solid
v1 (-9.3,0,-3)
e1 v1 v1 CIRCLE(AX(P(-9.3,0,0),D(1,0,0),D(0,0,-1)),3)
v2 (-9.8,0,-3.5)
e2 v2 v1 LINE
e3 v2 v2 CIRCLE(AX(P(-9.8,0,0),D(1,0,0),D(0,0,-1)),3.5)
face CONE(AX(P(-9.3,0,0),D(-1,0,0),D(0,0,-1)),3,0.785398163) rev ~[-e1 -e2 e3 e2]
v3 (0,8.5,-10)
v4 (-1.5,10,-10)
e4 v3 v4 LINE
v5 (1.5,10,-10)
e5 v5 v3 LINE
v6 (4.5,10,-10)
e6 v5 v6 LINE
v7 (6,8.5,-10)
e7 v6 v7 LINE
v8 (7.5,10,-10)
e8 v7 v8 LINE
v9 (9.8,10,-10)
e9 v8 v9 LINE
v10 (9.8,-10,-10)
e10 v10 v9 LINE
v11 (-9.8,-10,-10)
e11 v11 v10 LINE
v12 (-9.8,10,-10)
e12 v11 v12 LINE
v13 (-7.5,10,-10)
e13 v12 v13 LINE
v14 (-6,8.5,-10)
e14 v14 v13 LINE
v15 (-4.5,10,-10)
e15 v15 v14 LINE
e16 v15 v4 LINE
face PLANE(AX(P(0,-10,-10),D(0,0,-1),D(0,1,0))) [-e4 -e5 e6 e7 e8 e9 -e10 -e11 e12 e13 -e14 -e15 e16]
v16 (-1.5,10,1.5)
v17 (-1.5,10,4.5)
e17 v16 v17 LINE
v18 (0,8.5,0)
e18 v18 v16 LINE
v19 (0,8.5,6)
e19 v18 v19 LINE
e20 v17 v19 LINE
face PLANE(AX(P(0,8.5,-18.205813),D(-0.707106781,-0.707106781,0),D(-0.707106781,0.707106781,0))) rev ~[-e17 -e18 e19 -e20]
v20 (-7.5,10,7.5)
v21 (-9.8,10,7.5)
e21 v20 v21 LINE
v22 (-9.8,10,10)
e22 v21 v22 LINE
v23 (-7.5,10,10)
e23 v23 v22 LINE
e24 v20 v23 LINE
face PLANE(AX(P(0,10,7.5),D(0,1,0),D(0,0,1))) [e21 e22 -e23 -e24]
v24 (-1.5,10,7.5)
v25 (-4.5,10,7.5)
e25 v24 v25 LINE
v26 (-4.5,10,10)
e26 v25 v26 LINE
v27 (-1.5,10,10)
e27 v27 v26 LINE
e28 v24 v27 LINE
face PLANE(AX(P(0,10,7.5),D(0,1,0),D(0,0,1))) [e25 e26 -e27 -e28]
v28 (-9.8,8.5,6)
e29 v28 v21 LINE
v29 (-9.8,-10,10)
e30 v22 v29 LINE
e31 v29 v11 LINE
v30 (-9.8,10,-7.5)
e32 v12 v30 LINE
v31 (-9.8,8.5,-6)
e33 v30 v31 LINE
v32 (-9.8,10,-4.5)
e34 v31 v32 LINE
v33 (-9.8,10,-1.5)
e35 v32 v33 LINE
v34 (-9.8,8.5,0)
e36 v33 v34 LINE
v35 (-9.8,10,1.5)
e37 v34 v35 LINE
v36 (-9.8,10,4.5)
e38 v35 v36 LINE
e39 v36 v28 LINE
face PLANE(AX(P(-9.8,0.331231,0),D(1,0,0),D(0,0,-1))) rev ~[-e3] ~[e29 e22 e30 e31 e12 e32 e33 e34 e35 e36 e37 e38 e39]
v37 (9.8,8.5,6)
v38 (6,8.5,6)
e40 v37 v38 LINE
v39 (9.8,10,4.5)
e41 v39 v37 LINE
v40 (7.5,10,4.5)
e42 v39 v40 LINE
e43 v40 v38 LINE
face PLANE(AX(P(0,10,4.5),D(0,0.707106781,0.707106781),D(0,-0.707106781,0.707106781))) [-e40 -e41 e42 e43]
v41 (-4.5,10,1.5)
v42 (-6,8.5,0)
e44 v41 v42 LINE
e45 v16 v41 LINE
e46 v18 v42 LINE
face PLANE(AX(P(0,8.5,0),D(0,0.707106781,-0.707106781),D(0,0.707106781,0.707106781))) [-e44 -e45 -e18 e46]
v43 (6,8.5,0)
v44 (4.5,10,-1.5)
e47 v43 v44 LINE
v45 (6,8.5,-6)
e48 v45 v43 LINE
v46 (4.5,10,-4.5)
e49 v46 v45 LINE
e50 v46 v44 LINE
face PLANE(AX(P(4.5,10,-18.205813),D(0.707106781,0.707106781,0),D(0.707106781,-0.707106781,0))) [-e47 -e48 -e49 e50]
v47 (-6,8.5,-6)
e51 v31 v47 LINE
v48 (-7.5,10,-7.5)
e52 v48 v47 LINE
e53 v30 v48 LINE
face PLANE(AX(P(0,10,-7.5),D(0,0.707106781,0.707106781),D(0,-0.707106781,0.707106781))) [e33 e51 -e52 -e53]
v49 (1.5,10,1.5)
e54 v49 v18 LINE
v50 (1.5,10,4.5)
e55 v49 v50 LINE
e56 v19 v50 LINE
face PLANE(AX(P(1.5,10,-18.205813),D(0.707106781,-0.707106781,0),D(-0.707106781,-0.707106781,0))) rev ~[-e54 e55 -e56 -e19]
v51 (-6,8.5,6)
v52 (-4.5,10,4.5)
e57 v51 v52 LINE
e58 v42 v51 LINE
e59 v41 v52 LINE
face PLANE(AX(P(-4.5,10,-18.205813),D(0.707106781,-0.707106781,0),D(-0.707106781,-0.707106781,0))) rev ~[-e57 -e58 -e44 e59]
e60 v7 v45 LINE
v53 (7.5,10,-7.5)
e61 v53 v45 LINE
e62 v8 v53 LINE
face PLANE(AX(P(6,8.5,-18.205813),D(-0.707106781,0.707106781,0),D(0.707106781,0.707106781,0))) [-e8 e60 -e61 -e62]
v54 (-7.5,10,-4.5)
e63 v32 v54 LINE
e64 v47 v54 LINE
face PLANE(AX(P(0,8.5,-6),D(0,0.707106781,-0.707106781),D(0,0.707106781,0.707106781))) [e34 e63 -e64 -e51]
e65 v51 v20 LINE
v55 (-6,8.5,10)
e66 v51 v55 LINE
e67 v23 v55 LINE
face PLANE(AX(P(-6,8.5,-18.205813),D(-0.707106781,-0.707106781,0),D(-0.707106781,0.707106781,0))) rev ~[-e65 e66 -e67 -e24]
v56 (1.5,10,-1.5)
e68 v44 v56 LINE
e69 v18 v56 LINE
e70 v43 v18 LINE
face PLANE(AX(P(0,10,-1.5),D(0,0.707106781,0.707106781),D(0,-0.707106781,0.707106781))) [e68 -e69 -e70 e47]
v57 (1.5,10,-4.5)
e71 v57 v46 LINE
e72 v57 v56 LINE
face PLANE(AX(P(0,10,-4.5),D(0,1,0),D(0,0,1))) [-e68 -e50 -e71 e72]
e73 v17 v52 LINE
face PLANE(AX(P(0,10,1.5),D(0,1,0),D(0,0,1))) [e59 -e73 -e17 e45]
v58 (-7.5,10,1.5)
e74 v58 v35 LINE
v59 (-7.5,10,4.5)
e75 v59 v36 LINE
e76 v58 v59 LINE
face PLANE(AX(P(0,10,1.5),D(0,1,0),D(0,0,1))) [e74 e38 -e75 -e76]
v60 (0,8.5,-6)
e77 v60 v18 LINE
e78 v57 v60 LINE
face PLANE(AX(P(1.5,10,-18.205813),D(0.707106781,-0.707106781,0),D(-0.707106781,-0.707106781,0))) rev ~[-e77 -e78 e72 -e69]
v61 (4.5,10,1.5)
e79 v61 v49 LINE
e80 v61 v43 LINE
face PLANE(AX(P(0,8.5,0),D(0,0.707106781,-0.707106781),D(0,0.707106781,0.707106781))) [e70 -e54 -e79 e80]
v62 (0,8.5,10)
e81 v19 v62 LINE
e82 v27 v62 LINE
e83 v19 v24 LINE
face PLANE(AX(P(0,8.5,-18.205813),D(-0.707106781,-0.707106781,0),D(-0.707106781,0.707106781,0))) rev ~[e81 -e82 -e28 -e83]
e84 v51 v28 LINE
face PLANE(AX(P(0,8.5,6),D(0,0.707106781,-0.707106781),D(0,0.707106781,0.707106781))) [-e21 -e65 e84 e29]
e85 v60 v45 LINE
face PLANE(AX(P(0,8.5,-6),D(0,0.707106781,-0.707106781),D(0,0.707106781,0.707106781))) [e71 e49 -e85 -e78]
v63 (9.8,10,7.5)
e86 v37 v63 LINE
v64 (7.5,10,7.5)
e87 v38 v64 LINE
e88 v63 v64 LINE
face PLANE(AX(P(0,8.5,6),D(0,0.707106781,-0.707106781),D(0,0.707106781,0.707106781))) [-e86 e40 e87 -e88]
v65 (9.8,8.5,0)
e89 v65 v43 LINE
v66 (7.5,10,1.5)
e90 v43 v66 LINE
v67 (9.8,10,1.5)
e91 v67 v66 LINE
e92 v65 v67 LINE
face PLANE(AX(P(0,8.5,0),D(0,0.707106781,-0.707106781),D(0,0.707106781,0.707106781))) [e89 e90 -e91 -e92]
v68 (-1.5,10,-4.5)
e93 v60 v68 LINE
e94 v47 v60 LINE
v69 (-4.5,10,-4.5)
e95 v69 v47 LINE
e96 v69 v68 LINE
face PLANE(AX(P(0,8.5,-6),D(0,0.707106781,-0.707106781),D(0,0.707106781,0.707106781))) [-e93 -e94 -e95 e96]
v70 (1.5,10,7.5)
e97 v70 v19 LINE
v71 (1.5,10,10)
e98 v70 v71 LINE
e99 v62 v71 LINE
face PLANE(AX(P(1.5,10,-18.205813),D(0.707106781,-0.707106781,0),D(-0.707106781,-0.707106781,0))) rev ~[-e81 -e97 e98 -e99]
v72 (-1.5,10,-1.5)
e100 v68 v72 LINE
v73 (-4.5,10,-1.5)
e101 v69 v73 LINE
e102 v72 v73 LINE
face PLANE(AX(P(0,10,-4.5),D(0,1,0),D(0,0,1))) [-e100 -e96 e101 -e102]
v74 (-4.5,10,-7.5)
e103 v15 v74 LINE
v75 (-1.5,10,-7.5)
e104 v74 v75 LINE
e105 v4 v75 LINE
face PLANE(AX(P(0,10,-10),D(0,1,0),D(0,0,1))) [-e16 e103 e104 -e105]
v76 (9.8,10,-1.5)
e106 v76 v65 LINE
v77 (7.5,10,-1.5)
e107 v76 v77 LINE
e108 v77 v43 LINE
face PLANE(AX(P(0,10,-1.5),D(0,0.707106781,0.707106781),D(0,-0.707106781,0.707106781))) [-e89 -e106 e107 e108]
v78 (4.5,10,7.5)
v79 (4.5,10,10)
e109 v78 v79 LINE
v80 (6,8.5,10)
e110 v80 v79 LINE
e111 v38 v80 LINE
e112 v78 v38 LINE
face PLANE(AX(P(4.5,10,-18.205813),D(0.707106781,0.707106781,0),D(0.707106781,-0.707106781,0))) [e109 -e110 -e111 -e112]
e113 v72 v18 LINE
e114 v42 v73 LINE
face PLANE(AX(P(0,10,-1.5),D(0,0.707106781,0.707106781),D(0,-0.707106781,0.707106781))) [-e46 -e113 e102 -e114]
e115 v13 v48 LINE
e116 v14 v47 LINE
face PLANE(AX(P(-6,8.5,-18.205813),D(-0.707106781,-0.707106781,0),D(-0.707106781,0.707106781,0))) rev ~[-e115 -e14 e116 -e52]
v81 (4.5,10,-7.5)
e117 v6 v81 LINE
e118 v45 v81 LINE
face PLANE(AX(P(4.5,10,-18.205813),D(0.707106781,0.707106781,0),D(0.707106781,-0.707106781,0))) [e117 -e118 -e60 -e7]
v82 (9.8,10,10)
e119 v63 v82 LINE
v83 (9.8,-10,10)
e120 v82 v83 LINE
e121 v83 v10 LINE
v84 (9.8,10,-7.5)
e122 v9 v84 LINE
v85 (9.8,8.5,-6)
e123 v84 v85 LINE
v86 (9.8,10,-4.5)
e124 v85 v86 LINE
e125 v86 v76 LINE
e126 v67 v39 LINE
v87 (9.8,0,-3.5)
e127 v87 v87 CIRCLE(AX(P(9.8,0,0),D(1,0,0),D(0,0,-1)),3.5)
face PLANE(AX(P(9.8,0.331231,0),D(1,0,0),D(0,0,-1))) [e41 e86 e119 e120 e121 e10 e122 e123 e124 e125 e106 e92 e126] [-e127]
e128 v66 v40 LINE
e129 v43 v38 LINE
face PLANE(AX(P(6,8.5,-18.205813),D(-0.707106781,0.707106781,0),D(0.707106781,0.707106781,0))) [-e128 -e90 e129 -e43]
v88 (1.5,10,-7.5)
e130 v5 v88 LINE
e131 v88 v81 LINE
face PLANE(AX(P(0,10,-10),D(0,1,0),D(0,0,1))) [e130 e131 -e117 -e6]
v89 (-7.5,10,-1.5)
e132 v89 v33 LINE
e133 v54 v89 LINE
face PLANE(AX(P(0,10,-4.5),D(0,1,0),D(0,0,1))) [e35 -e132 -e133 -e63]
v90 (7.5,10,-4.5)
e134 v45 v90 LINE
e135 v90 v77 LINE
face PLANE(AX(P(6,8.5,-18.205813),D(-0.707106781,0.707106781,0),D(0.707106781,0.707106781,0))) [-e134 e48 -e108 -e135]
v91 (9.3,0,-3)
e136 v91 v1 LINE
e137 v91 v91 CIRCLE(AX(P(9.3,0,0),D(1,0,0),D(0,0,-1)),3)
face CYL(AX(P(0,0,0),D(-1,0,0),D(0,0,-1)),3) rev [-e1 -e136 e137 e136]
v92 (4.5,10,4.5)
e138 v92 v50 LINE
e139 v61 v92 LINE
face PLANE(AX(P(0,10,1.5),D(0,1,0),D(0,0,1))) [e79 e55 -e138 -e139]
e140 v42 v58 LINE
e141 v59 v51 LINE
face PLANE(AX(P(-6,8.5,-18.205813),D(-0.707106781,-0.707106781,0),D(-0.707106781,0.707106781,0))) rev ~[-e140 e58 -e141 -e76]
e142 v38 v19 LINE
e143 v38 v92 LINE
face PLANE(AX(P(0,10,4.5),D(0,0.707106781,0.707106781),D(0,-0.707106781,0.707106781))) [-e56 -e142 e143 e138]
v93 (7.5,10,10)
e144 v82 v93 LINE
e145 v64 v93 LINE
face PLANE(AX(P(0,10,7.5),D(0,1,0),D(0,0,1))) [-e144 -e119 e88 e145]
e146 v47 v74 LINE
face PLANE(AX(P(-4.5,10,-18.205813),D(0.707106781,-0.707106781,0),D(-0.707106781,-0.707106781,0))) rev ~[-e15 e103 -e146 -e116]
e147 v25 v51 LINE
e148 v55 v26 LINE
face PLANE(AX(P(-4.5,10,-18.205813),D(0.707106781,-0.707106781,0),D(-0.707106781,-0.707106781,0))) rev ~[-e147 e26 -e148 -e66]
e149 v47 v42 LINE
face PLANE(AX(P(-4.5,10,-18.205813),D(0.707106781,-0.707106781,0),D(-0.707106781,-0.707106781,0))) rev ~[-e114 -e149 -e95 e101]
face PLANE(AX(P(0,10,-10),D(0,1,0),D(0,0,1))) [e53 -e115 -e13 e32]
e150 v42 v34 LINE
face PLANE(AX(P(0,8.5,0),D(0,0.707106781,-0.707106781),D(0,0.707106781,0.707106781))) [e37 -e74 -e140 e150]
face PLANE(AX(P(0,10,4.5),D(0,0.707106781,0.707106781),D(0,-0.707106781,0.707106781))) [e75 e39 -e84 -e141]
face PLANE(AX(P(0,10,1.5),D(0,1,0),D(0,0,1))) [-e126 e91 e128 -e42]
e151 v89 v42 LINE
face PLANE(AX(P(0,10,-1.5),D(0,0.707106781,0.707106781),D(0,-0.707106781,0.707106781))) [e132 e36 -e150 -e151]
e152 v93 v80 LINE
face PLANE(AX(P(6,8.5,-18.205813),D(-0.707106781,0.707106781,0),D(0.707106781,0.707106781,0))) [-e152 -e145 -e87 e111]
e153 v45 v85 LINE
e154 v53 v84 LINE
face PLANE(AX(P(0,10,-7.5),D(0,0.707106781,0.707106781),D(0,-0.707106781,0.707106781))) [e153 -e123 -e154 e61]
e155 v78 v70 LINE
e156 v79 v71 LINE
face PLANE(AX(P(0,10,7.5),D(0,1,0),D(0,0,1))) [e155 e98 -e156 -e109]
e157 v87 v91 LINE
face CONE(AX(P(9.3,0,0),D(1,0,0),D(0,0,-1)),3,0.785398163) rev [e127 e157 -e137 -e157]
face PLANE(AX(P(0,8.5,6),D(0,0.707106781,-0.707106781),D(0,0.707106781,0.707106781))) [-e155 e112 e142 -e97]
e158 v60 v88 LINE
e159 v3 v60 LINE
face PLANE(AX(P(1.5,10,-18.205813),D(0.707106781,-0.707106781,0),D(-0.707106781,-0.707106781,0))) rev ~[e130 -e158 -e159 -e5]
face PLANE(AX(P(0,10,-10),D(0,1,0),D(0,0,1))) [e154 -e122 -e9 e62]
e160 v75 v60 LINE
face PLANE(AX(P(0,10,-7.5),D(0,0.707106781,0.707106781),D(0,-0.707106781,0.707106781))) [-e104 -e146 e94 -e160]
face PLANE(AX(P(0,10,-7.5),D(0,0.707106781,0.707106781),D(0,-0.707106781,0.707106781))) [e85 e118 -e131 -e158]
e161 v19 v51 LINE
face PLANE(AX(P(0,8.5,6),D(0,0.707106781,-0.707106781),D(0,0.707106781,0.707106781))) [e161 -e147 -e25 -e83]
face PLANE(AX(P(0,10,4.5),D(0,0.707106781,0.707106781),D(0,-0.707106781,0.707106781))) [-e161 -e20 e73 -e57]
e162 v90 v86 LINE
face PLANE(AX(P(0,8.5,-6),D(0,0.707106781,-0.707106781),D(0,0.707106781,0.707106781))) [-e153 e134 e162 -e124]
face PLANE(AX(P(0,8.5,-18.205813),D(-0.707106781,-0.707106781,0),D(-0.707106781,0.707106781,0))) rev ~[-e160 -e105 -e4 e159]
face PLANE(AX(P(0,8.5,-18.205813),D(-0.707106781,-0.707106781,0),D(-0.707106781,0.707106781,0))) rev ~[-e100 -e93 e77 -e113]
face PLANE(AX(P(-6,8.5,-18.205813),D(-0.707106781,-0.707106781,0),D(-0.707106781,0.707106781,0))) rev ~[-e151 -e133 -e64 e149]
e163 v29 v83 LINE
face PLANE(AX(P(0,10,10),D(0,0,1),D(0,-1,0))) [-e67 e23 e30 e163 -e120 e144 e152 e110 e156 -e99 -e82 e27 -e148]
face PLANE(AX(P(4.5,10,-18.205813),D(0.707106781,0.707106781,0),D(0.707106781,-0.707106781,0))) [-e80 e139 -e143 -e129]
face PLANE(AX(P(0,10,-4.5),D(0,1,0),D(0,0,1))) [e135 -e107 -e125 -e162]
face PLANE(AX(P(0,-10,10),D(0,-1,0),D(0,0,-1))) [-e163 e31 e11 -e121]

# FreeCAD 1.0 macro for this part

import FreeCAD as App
import Part
import Sketcher


def edges_at(feature, points):
    """Names of the edges that pass closest to the given points."""
    edges = feature.Shape.Edges
    near = lambda p: min(range(len(edges)), key=lambda i: edges[i].distToShape(Part.Vertex(*p))[0])
    return sorted({f"Edge{near(p) + 1}" for p in points})


def add_polygon(sketch, points):
    """Adds a closed chain of lines whose ends are joined by coincident constraints."""
    first, n = sketch.GeometryCount, len(points)
    for a, b in zip(points, points[1:] + points[:1]):
        sketch.addGeometry(Part.LineSegment(App.Vector(*a, 0), App.Vector(*b, 0)), False)
    for i in range(n):
        sketch.addConstraint(Sketcher.Constraint("Coincident", first + i, 2, first + (i + 1) % n, 1))

doc = App.newDocument("Part")
body = doc.addObject("PartDesign::Body", "Body")

# Sketch on YZ plane
sketch1 = body.newObject("Sketcher::SketchObject", "Sketch")
sketch1.AttachmentSupport = (doc.getObject("YZ_Plane"), [""])
sketch1.MapMode = "FlatFace"
add_polygon(sketch1, [(10, 10), (-10, 10), (-10, -10), (10, -10), (10, -7.5), (8.5, -6), (10, -4.5), (10, -1.5), (8.5, 0), (10, 1.5), (10, 4.5), (8.5, 6), (10, 7.5)])  # lines 0-12
sketch1.addGeometry(Part.Circle(App.Vector(0, 0, 0), App.Vector(0, 0, 1), 3), False)  # 13
sketch1.addConstraint([
    Sketcher.Constraint("Horizontal", 0),
    Sketcher.Constraint("Vertical", 1),
    Sketcher.Constraint("Horizontal", 2),
    Sketcher.Constraint("Vertical", 3),
    Sketcher.Constraint("Vertical", 6),
    Sketcher.Constraint("Vertical", 9),
    Sketcher.Constraint("Vertical", 12),
    Sketcher.Constraint("Coincident", 13, 3, -1, 1),
    Sketcher.Constraint("Symmetric", 0, 2, 2, 2, -1, 1),
    Sketcher.Constraint("Symmetric", 6, 2, 8, 2, -1),
    Sketcher.Constraint("Symmetric", 4, 2, 10, 2, -1),
    Sketcher.Constraint("Symmetric", 3, 2, 11, 2, -1),
    Sketcher.Constraint("PointOnObject", 7, 2, -1),
    Sketcher.Constraint("Perpendicular", 4, 5),
    Sketcher.Constraint("Perpendicular", 5, 7),
    Sketcher.Constraint("Perpendicular", 7, 8),
    Sketcher.Constraint("Perpendicular", 8, 10),
    Sketcher.Constraint("Vertical", 3, 2, 5, 2),
    Sketcher.Constraint("Vertical", 4, 2, 7, 2),
    Sketcher.Constraint("Equal", 2, 1),
    Sketcher.Constraint("Diameter", 13, 6.0),
    Sketcher.Constraint("DistanceX", 0, 2, 0, 1, 20.0),
    Sketcher.Constraint("DistanceY", 6, 1, 6, 2, 3.0),
    Sketcher.Constraint("DistanceY", 3, 1, 3, 2, 2.5),
])
pad1 = body.newObject("PartDesign::Pad", "Pad")
pad1.Profile = sketch1
pad1.Length = 19.6
pad1.Midplane = True

# Sketch on XY plane
sketch2 = body.newObject("Sketcher::SketchObject", "Sketch001")
sketch2.AttachmentSupport = (doc.getObject("XY_Plane"), [""])
sketch2.MapMode = "FlatFace"
add_polygon(sketch2, [(-4.5, 10), (-7.5, 10), (-6, 8.5)])  # lines 0-2
add_polygon(sketch2, [(-1.5, 10), (0, 8.5), (1.5, 10)])  # lines 3-5
add_polygon(sketch2, [(4.5, 10), (6, 8.5), (7.5, 10)])  # lines 6-8
sketch2.addConstraint([
    Sketcher.Constraint("Horizontal", 0),
    Sketcher.Constraint("Horizontal", 5),
    Sketcher.Constraint("Horizontal", 8),
    Sketcher.Constraint("Symmetric", 1, 2, 6, 2, -2),
    Sketcher.Constraint("Symmetric", 0, 2, 7, 2, -2),
    Sketcher.Constraint("PointOnObject", 3, 2, -2),
    Sketcher.Constraint("Perpendicular", 1, 2),
    Sketcher.Constraint("Perpendicular", 2, 3),
    Sketcher.Constraint("Perpendicular", 3, 4),
    Sketcher.Constraint("Perpendicular", 4, 6),
    Sketcher.Constraint("Perpendicular", 6, 7),
    Sketcher.Constraint("Horizontal", 1, 2, 3, 2),
    Sketcher.Constraint("Horizontal", 2, 2, 4, 2),
    Sketcher.Constraint("DistanceX", 0, 2, 0, 1, 3.0),
    Sketcher.Constraint("DistanceY", -1, 1, 0, 2, 10.0),
    Sketcher.Constraint("DistanceX", 1, 2, -1, 1, 6.0),
])
pocket1 = body.newObject("PartDesign::Pocket", "Pocket")
pocket1.Profile = sketch2
pocket1.Type = "ThroughAll"
pocket1.Midplane = True
doc.recompute()

chamfer = body.newObject("PartDesign::Chamfer", "Chamfer")
chamfer.Base = (pocket1, edges_at(pocket1, [(-9.8, 0, 3), (9.8, 0, 3)]))
chamfer.Size = 0.5

doc.recompute()
